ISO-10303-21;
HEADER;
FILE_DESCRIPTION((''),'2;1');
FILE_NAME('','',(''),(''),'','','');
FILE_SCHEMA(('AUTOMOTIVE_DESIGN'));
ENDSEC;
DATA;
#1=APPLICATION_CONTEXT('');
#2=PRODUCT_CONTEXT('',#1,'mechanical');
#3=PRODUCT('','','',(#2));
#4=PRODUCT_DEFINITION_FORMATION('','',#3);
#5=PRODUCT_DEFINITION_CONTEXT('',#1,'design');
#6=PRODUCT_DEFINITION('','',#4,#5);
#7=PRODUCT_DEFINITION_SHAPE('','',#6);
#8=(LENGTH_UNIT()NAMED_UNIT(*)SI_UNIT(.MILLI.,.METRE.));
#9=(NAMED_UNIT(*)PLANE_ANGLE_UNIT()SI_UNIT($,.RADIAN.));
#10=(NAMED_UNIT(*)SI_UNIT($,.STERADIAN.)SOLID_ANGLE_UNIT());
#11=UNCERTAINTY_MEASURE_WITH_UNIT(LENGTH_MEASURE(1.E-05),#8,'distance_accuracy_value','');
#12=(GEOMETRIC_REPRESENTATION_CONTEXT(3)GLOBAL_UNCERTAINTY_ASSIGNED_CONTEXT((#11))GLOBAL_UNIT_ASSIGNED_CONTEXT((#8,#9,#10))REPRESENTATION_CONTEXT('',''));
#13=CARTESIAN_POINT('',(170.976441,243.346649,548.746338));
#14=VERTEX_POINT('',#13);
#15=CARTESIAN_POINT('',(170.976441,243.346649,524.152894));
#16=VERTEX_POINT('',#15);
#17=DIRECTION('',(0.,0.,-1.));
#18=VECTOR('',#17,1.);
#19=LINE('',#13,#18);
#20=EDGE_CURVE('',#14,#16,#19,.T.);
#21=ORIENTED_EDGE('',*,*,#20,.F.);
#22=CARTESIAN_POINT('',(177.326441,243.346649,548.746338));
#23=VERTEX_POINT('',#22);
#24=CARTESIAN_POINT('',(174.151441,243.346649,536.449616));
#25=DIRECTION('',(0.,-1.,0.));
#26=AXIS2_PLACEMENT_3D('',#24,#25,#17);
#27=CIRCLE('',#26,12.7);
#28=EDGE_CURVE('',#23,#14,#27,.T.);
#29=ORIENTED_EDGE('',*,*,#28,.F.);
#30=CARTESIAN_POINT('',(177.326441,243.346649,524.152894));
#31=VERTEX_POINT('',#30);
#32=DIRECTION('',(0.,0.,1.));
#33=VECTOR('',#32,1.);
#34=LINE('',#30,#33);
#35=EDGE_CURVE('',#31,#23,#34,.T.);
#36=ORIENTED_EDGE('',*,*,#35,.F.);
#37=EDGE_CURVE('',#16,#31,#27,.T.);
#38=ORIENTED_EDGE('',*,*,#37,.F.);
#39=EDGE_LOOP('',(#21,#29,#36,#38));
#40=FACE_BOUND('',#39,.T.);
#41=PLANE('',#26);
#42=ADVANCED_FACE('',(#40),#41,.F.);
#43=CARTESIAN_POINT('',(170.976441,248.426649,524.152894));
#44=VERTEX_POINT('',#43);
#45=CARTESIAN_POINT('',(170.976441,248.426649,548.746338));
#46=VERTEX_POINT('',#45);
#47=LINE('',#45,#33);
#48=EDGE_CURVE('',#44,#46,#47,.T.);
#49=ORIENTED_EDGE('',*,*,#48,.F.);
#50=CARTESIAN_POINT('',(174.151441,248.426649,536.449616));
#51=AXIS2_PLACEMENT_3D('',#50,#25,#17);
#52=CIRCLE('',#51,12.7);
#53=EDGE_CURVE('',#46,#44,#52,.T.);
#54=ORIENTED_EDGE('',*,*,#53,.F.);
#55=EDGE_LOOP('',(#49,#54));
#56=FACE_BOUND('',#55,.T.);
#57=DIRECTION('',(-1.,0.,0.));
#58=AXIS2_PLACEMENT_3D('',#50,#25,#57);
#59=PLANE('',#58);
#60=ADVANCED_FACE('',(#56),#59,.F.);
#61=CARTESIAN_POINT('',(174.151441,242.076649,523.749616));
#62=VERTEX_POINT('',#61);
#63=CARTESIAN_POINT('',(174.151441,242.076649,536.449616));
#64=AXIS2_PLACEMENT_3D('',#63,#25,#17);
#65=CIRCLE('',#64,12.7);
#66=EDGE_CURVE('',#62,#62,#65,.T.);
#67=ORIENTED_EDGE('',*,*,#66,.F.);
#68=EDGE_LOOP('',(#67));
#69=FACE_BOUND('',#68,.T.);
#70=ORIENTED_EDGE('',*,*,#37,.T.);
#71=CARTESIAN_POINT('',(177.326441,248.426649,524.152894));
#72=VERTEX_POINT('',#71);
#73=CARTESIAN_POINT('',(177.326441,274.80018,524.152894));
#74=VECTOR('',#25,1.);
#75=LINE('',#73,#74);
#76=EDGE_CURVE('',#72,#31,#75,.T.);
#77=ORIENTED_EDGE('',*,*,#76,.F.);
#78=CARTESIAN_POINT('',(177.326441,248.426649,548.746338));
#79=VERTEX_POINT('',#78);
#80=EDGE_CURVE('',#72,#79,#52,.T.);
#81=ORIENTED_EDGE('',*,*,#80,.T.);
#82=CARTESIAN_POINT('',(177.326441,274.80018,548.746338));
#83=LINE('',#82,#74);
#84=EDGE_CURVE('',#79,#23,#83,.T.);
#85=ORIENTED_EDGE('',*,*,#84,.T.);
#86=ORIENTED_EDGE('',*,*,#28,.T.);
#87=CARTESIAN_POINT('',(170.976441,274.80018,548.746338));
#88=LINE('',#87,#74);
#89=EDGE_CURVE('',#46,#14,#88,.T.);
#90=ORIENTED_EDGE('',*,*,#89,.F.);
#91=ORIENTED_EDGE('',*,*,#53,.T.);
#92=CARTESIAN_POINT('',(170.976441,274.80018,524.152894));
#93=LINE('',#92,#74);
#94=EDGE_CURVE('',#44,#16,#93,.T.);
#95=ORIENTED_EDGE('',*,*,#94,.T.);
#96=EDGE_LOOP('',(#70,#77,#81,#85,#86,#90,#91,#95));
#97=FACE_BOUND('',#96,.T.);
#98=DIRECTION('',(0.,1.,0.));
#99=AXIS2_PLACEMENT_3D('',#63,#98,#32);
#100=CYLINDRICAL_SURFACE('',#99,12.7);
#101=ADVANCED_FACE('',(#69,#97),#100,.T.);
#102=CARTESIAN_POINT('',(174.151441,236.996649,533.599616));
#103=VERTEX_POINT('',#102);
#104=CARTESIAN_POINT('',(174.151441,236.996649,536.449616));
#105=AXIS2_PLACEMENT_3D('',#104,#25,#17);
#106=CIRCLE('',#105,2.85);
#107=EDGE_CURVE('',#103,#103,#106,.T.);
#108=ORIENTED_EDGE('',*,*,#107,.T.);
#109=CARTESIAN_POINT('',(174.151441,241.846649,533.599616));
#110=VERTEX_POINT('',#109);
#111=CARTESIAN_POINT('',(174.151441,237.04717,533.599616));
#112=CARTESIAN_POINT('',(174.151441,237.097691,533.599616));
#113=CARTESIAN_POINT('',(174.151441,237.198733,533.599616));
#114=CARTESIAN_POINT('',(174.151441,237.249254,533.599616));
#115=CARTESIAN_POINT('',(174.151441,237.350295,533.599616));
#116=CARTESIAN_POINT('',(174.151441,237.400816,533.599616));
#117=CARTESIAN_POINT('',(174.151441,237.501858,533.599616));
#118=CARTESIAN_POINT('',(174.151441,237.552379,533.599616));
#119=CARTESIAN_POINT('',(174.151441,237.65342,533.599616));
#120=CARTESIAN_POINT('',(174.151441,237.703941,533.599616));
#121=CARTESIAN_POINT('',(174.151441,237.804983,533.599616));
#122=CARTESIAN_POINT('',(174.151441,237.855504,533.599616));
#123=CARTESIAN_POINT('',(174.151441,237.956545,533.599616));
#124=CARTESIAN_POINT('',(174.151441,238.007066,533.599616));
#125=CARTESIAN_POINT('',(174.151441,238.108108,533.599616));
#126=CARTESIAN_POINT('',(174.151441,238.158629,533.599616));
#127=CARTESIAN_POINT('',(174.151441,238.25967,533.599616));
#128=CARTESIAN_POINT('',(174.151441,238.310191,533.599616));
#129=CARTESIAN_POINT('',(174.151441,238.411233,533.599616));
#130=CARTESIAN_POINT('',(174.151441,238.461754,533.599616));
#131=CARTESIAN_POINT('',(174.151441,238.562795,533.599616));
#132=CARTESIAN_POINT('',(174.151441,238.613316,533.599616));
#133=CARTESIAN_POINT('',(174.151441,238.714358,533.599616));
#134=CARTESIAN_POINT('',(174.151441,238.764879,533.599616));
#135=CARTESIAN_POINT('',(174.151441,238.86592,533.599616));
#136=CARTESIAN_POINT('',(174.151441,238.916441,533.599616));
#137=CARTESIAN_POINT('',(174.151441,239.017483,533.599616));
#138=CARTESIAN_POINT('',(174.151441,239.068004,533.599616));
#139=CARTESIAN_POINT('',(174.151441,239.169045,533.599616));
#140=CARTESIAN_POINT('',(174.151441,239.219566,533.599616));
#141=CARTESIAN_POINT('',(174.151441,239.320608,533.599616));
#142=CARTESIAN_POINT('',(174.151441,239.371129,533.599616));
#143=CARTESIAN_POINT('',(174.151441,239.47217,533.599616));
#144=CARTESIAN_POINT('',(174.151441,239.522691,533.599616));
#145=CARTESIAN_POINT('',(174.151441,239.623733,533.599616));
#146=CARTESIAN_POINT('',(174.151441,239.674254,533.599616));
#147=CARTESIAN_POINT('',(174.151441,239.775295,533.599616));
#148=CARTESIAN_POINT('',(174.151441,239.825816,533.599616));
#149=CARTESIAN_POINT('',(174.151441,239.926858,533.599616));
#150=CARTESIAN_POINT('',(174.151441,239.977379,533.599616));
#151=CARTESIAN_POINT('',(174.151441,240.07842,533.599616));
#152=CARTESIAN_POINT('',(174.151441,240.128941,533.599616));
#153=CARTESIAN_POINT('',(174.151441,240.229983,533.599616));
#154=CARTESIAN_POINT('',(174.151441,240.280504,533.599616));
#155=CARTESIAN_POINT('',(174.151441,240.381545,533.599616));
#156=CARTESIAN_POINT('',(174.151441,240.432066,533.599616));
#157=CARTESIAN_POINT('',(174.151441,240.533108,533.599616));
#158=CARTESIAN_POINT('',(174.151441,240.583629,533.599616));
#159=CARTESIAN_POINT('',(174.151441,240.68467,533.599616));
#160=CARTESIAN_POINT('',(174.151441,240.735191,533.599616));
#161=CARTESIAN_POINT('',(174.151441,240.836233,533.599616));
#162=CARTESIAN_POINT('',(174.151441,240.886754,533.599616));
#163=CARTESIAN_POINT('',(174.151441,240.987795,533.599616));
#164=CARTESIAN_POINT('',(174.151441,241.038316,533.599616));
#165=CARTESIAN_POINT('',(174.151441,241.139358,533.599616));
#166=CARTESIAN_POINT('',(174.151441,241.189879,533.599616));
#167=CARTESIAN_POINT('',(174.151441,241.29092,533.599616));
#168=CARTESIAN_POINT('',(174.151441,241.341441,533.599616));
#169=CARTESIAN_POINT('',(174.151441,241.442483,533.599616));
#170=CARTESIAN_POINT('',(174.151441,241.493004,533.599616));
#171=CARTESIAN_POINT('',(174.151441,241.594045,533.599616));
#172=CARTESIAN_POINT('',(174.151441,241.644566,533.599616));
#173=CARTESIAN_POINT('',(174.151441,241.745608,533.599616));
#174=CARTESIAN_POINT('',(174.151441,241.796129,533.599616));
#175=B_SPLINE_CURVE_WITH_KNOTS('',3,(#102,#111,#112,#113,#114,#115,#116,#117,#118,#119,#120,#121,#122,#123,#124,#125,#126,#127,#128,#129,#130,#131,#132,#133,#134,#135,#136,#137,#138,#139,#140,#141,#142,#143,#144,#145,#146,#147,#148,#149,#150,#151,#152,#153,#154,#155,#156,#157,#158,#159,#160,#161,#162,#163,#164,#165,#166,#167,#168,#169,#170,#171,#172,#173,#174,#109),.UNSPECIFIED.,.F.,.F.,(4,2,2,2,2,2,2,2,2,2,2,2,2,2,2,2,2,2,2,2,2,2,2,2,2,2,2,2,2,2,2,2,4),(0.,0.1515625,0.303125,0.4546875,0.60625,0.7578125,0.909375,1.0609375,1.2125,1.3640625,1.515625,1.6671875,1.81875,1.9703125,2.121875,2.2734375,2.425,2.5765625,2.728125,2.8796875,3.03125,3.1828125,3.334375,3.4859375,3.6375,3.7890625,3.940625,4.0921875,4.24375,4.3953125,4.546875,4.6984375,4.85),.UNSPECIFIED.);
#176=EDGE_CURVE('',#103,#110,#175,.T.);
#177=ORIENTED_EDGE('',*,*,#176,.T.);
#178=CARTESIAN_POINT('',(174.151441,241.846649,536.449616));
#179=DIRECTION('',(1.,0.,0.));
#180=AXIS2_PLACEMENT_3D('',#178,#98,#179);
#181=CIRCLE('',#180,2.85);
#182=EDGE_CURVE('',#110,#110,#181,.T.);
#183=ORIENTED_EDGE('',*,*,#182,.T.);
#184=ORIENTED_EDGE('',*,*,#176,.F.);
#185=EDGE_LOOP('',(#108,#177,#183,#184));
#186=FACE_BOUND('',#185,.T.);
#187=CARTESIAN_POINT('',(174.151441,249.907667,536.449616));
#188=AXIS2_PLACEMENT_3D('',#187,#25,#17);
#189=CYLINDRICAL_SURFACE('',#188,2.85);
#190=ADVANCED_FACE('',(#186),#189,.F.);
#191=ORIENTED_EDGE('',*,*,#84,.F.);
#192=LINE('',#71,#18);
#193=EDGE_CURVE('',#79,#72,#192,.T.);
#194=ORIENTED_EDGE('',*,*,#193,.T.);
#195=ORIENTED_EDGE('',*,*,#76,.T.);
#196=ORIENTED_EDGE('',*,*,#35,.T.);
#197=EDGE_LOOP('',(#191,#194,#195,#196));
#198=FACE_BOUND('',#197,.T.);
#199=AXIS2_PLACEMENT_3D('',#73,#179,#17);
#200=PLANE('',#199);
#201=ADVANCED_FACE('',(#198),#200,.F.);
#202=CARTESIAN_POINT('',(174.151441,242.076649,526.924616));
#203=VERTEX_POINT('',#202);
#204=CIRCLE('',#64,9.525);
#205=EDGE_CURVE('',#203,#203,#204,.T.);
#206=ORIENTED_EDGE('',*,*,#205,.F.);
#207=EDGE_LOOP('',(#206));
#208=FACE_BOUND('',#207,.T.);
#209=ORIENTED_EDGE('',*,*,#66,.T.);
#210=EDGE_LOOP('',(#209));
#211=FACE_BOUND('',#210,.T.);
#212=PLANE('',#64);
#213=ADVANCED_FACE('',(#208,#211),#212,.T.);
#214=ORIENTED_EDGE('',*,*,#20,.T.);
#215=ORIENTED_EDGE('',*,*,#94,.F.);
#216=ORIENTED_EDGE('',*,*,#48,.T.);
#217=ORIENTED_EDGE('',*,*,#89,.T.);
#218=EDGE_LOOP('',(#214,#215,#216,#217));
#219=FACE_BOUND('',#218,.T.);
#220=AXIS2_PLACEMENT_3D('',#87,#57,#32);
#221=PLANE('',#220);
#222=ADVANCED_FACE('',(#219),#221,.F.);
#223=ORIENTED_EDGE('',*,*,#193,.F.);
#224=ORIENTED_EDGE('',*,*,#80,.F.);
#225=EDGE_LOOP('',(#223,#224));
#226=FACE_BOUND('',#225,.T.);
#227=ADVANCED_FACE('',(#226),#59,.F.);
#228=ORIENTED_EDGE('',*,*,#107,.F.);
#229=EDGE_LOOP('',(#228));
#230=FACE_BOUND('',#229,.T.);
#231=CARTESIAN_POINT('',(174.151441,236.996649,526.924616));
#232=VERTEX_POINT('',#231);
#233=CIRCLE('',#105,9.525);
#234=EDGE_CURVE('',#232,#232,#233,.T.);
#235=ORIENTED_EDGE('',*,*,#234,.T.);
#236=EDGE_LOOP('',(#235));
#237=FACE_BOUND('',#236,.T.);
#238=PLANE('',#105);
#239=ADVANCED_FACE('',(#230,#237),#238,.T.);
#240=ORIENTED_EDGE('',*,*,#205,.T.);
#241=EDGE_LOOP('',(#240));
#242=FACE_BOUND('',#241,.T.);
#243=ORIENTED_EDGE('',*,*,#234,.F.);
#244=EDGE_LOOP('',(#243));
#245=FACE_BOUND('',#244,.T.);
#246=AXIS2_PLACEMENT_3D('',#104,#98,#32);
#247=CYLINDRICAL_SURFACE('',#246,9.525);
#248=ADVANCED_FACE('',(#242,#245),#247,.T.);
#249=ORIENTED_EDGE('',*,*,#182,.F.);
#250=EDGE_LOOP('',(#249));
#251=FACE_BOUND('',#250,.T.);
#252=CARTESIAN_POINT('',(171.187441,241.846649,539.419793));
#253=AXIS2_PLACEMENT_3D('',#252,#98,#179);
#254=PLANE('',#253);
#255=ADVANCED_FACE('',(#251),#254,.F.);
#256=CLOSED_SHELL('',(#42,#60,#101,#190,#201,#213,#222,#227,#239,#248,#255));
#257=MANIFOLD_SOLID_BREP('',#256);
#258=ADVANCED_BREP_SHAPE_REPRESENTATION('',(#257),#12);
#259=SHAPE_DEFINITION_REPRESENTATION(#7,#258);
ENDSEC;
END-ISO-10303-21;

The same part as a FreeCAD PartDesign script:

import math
import FreeCAD as App
import Part
import Sketcher
Q = App.Units.Quantity

doc = App.newDocument("Part")
params = doc.addObject("Spreadsheet::Sheet", "Params")
for row, (alias, value) in enumerate([
    ("sketch1_radius", "0.5 in"),
    ("pad1_length", "0.05 in"),
    ("sketch2_radius", "0.5 in"),
    ("pad2_length", "0.2 in"),
    ("sketch3_diameter", "0.75 in"),
    ("pad3_length", "0.2 in"),
    ("pocket1_length", "4.85 mm"),
], start=1):
    params.set(f"A{row}", alias)
    params.set(f"B{row}", "=" + value)
    params.setAlias(f"B{row}", alias)

body = doc.addObject("PartDesign::Body", "Body")

# Sketch on XZ plane
sketch1 = body.newObject("Sketcher::SketchObject", "Sketch")
sketch1.AttachmentSupport = (doc.getObject("XZ_Plane"), [""])
sketch1.MapMode = "FlatFace"
sketch1.AttachmentOffset = App.Placement(App.Vector(0, 0, -243.346649), App.Rotation())
sketch1.addGeometry([
    Part.ArcOfCircle(Part.Circle(App.Vector(174, 536, 0), App.Vector(0, 0, 1), 13), math.radians(104), math.radians(256)),
    Part.ArcOfCircle(Part.Circle(App.Vector(174, 536, 0), App.Vector(0, 0, 1), 13), math.radians(-104), math.radians(-76)),
    Part.ArcOfCircle(Part.Circle(App.Vector(174, 536, 0), App.Vector(0, 0, 1), 13), math.radians(-76), math.radians(76)),
    Part.ArcOfCircle(Part.Circle(App.Vector(174, 536, 0), App.Vector(0, 0, 1), 13), math.radians(76), math.radians(104)),
], False)
sketch1.addConstraint([
    Sketcher.Constraint("Tangent", 0, 2, 1, 1),
    Sketcher.Constraint("Tangent", 1, 2, 2, 1),
    Sketcher.Constraint("Tangent", 2, 2, 3, 1),
    Sketcher.Constraint("Tangent", 3, 2, 0, 1),
    Sketcher.Constraint("Equal", 0, 1),
    Sketcher.Constraint("Horizontal", 0, 2, 1, 2),
    Sketcher.Constraint("Horizontal", 2, 2, 3, 2),
    Sketcher.Constraint("Vertical", 1, 2, 2, 2),
    Sketcher.Constraint("Radius", 0, Q("0.5 in")),
    Sketcher.Constraint("DistanceX", 0, 2, 1, 2, Q("0.25 in")),
    Sketcher.Constraint("DistanceX", -1, 1, 0, 3, 174.151441),
    Sketcher.Constraint("DistanceY", -1, 1, 2, 2, 548.746338),
])
sketch1.setExpression("Constraints[8]", "Params.sketch1_radius")
pad1 = body.newObject("PartDesign::Pad", "Pad")
pad1.Profile = sketch1
pad1.setExpression("Length", "Params.pad1_length")

# Sketch on XZ plane
sketch2 = body.newObject("Sketcher::SketchObject", "Sketch001")
sketch2.AttachmentSupport = (doc.getObject("XZ_Plane"), [""])
sketch2.MapMode = "FlatFace"
sketch2.AttachmentOffset = App.Placement(App.Vector(0, 0, -248.426649), App.Rotation())
sketch2.addGeometry([
    Part.LineSegment(App.Vector(177, 524, 0), App.Vector(177, 549, 0)),
    Part.ArcOfCircle(Part.Circle(App.Vector(174, 536, 0), App.Vector(0, 0, 1), 13), math.radians(-76), math.radians(76)),
    Part.LineSegment(App.Vector(171, 549, 0), App.Vector(171, 524, 0)),
    Part.ArcOfCircle(Part.Circle(App.Vector(174, 536, 0), App.Vector(0, 0, 1), 13), math.radians(104), math.radians(256)),
], False)
sketch2.addConstraint([
    Sketcher.Constraint("Coincident", 0, 1, 1, 1),
    Sketcher.Constraint("Coincident", 1, 2, 0, 2),
    Sketcher.Constraint("Coincident", 2, 1, 3, 1),
    Sketcher.Constraint("Coincident", 3, 2, 2, 2),
    Sketcher.Constraint("Vertical", 0),
    Sketcher.Constraint("Vertical", 2),
    Sketcher.Constraint("Coincident", 3, 3, 1, 3),
    Sketcher.Constraint("Equal", 1, 3),
    Sketcher.Constraint("Horizontal", 1, 2, 2, 1),
    Sketcher.Constraint("Radius", 1, Q("0.5 in")),
    Sketcher.Constraint("DistanceX", 2, 1, 1, 2, Q("0.25 in")),
    Sketcher.Constraint("DistanceX", -1, 1, 1, 3, 174.151441),
    Sketcher.Constraint("DistanceY", -1, 1, 1, 2, 548.746338),
])
sketch2.setExpression("Constraints[9]", "Params.sketch2_radius")
pad2 = body.newObject("PartDesign::Pad", "Pad001")
pad2.Profile = sketch2
pad2.setExpression("Length", "Params.pad2_length")

# Sketch on XZ plane
sketch3 = body.newObject("Sketcher::SketchObject", "Sketch002")
sketch3.AttachmentSupport = (doc.getObject("XZ_Plane"), [""])
sketch3.MapMode = "FlatFace"
sketch3.AttachmentOffset = App.Placement(App.Vector(0, 0, -242.076649), App.Rotation())
sketch3.addGeometry(Part.Circle(App.Vector(174, 536, 0), App.Vector(0, 0, 1), 10), False)
sketch3.addConstraint([
    Sketcher.Constraint("Diameter", 0, Q("0.75 in")),
    Sketcher.Constraint("DistanceX", -1, 1, 0, 3, 174.151441),
    Sketcher.Constraint("DistanceY", -1, 1, 0, 3, 536.449616),
])
sketch3.setExpression("Constraints[0]", "Params.sketch3_diameter")
pad3 = body.newObject("PartDesign::Pad", "Pad002")
pad3.Profile = sketch3
pad3.setExpression("Length", "Params.pad3_length")

# Sketch on XZ plane
sketch4 = body.newObject("Sketcher::SketchObject", "Sketch003")
sketch4.AttachmentSupport = (doc.getObject("XZ_Plane"), [""])
sketch4.MapMode = "FlatFace"
sketch4.AttachmentOffset = App.Placement(App.Vector(0, 0, -241.846649), App.Rotation())
sketch4.addGeometry(Part.Circle(App.Vector(174.2, 536.4, 0), App.Vector(0, 0, 1), 2.9), False)
sketch4.addConstraint([
    Sketcher.Constraint("Diameter", 0, 5.7),
    Sketcher.Constraint("DistanceX", -1, 1, 0, 3, 174.151441),
    Sketcher.Constraint("DistanceY", -1, 1, 0, 3, 536.449616),
])
pocket1 = body.newObject("PartDesign::Pocket", "Pocket")
pocket1.Profile = sketch4
pocket1.setExpression("Length", "Params.pocket1_length")
pocket1.Reversed = True

doc.recompute()
